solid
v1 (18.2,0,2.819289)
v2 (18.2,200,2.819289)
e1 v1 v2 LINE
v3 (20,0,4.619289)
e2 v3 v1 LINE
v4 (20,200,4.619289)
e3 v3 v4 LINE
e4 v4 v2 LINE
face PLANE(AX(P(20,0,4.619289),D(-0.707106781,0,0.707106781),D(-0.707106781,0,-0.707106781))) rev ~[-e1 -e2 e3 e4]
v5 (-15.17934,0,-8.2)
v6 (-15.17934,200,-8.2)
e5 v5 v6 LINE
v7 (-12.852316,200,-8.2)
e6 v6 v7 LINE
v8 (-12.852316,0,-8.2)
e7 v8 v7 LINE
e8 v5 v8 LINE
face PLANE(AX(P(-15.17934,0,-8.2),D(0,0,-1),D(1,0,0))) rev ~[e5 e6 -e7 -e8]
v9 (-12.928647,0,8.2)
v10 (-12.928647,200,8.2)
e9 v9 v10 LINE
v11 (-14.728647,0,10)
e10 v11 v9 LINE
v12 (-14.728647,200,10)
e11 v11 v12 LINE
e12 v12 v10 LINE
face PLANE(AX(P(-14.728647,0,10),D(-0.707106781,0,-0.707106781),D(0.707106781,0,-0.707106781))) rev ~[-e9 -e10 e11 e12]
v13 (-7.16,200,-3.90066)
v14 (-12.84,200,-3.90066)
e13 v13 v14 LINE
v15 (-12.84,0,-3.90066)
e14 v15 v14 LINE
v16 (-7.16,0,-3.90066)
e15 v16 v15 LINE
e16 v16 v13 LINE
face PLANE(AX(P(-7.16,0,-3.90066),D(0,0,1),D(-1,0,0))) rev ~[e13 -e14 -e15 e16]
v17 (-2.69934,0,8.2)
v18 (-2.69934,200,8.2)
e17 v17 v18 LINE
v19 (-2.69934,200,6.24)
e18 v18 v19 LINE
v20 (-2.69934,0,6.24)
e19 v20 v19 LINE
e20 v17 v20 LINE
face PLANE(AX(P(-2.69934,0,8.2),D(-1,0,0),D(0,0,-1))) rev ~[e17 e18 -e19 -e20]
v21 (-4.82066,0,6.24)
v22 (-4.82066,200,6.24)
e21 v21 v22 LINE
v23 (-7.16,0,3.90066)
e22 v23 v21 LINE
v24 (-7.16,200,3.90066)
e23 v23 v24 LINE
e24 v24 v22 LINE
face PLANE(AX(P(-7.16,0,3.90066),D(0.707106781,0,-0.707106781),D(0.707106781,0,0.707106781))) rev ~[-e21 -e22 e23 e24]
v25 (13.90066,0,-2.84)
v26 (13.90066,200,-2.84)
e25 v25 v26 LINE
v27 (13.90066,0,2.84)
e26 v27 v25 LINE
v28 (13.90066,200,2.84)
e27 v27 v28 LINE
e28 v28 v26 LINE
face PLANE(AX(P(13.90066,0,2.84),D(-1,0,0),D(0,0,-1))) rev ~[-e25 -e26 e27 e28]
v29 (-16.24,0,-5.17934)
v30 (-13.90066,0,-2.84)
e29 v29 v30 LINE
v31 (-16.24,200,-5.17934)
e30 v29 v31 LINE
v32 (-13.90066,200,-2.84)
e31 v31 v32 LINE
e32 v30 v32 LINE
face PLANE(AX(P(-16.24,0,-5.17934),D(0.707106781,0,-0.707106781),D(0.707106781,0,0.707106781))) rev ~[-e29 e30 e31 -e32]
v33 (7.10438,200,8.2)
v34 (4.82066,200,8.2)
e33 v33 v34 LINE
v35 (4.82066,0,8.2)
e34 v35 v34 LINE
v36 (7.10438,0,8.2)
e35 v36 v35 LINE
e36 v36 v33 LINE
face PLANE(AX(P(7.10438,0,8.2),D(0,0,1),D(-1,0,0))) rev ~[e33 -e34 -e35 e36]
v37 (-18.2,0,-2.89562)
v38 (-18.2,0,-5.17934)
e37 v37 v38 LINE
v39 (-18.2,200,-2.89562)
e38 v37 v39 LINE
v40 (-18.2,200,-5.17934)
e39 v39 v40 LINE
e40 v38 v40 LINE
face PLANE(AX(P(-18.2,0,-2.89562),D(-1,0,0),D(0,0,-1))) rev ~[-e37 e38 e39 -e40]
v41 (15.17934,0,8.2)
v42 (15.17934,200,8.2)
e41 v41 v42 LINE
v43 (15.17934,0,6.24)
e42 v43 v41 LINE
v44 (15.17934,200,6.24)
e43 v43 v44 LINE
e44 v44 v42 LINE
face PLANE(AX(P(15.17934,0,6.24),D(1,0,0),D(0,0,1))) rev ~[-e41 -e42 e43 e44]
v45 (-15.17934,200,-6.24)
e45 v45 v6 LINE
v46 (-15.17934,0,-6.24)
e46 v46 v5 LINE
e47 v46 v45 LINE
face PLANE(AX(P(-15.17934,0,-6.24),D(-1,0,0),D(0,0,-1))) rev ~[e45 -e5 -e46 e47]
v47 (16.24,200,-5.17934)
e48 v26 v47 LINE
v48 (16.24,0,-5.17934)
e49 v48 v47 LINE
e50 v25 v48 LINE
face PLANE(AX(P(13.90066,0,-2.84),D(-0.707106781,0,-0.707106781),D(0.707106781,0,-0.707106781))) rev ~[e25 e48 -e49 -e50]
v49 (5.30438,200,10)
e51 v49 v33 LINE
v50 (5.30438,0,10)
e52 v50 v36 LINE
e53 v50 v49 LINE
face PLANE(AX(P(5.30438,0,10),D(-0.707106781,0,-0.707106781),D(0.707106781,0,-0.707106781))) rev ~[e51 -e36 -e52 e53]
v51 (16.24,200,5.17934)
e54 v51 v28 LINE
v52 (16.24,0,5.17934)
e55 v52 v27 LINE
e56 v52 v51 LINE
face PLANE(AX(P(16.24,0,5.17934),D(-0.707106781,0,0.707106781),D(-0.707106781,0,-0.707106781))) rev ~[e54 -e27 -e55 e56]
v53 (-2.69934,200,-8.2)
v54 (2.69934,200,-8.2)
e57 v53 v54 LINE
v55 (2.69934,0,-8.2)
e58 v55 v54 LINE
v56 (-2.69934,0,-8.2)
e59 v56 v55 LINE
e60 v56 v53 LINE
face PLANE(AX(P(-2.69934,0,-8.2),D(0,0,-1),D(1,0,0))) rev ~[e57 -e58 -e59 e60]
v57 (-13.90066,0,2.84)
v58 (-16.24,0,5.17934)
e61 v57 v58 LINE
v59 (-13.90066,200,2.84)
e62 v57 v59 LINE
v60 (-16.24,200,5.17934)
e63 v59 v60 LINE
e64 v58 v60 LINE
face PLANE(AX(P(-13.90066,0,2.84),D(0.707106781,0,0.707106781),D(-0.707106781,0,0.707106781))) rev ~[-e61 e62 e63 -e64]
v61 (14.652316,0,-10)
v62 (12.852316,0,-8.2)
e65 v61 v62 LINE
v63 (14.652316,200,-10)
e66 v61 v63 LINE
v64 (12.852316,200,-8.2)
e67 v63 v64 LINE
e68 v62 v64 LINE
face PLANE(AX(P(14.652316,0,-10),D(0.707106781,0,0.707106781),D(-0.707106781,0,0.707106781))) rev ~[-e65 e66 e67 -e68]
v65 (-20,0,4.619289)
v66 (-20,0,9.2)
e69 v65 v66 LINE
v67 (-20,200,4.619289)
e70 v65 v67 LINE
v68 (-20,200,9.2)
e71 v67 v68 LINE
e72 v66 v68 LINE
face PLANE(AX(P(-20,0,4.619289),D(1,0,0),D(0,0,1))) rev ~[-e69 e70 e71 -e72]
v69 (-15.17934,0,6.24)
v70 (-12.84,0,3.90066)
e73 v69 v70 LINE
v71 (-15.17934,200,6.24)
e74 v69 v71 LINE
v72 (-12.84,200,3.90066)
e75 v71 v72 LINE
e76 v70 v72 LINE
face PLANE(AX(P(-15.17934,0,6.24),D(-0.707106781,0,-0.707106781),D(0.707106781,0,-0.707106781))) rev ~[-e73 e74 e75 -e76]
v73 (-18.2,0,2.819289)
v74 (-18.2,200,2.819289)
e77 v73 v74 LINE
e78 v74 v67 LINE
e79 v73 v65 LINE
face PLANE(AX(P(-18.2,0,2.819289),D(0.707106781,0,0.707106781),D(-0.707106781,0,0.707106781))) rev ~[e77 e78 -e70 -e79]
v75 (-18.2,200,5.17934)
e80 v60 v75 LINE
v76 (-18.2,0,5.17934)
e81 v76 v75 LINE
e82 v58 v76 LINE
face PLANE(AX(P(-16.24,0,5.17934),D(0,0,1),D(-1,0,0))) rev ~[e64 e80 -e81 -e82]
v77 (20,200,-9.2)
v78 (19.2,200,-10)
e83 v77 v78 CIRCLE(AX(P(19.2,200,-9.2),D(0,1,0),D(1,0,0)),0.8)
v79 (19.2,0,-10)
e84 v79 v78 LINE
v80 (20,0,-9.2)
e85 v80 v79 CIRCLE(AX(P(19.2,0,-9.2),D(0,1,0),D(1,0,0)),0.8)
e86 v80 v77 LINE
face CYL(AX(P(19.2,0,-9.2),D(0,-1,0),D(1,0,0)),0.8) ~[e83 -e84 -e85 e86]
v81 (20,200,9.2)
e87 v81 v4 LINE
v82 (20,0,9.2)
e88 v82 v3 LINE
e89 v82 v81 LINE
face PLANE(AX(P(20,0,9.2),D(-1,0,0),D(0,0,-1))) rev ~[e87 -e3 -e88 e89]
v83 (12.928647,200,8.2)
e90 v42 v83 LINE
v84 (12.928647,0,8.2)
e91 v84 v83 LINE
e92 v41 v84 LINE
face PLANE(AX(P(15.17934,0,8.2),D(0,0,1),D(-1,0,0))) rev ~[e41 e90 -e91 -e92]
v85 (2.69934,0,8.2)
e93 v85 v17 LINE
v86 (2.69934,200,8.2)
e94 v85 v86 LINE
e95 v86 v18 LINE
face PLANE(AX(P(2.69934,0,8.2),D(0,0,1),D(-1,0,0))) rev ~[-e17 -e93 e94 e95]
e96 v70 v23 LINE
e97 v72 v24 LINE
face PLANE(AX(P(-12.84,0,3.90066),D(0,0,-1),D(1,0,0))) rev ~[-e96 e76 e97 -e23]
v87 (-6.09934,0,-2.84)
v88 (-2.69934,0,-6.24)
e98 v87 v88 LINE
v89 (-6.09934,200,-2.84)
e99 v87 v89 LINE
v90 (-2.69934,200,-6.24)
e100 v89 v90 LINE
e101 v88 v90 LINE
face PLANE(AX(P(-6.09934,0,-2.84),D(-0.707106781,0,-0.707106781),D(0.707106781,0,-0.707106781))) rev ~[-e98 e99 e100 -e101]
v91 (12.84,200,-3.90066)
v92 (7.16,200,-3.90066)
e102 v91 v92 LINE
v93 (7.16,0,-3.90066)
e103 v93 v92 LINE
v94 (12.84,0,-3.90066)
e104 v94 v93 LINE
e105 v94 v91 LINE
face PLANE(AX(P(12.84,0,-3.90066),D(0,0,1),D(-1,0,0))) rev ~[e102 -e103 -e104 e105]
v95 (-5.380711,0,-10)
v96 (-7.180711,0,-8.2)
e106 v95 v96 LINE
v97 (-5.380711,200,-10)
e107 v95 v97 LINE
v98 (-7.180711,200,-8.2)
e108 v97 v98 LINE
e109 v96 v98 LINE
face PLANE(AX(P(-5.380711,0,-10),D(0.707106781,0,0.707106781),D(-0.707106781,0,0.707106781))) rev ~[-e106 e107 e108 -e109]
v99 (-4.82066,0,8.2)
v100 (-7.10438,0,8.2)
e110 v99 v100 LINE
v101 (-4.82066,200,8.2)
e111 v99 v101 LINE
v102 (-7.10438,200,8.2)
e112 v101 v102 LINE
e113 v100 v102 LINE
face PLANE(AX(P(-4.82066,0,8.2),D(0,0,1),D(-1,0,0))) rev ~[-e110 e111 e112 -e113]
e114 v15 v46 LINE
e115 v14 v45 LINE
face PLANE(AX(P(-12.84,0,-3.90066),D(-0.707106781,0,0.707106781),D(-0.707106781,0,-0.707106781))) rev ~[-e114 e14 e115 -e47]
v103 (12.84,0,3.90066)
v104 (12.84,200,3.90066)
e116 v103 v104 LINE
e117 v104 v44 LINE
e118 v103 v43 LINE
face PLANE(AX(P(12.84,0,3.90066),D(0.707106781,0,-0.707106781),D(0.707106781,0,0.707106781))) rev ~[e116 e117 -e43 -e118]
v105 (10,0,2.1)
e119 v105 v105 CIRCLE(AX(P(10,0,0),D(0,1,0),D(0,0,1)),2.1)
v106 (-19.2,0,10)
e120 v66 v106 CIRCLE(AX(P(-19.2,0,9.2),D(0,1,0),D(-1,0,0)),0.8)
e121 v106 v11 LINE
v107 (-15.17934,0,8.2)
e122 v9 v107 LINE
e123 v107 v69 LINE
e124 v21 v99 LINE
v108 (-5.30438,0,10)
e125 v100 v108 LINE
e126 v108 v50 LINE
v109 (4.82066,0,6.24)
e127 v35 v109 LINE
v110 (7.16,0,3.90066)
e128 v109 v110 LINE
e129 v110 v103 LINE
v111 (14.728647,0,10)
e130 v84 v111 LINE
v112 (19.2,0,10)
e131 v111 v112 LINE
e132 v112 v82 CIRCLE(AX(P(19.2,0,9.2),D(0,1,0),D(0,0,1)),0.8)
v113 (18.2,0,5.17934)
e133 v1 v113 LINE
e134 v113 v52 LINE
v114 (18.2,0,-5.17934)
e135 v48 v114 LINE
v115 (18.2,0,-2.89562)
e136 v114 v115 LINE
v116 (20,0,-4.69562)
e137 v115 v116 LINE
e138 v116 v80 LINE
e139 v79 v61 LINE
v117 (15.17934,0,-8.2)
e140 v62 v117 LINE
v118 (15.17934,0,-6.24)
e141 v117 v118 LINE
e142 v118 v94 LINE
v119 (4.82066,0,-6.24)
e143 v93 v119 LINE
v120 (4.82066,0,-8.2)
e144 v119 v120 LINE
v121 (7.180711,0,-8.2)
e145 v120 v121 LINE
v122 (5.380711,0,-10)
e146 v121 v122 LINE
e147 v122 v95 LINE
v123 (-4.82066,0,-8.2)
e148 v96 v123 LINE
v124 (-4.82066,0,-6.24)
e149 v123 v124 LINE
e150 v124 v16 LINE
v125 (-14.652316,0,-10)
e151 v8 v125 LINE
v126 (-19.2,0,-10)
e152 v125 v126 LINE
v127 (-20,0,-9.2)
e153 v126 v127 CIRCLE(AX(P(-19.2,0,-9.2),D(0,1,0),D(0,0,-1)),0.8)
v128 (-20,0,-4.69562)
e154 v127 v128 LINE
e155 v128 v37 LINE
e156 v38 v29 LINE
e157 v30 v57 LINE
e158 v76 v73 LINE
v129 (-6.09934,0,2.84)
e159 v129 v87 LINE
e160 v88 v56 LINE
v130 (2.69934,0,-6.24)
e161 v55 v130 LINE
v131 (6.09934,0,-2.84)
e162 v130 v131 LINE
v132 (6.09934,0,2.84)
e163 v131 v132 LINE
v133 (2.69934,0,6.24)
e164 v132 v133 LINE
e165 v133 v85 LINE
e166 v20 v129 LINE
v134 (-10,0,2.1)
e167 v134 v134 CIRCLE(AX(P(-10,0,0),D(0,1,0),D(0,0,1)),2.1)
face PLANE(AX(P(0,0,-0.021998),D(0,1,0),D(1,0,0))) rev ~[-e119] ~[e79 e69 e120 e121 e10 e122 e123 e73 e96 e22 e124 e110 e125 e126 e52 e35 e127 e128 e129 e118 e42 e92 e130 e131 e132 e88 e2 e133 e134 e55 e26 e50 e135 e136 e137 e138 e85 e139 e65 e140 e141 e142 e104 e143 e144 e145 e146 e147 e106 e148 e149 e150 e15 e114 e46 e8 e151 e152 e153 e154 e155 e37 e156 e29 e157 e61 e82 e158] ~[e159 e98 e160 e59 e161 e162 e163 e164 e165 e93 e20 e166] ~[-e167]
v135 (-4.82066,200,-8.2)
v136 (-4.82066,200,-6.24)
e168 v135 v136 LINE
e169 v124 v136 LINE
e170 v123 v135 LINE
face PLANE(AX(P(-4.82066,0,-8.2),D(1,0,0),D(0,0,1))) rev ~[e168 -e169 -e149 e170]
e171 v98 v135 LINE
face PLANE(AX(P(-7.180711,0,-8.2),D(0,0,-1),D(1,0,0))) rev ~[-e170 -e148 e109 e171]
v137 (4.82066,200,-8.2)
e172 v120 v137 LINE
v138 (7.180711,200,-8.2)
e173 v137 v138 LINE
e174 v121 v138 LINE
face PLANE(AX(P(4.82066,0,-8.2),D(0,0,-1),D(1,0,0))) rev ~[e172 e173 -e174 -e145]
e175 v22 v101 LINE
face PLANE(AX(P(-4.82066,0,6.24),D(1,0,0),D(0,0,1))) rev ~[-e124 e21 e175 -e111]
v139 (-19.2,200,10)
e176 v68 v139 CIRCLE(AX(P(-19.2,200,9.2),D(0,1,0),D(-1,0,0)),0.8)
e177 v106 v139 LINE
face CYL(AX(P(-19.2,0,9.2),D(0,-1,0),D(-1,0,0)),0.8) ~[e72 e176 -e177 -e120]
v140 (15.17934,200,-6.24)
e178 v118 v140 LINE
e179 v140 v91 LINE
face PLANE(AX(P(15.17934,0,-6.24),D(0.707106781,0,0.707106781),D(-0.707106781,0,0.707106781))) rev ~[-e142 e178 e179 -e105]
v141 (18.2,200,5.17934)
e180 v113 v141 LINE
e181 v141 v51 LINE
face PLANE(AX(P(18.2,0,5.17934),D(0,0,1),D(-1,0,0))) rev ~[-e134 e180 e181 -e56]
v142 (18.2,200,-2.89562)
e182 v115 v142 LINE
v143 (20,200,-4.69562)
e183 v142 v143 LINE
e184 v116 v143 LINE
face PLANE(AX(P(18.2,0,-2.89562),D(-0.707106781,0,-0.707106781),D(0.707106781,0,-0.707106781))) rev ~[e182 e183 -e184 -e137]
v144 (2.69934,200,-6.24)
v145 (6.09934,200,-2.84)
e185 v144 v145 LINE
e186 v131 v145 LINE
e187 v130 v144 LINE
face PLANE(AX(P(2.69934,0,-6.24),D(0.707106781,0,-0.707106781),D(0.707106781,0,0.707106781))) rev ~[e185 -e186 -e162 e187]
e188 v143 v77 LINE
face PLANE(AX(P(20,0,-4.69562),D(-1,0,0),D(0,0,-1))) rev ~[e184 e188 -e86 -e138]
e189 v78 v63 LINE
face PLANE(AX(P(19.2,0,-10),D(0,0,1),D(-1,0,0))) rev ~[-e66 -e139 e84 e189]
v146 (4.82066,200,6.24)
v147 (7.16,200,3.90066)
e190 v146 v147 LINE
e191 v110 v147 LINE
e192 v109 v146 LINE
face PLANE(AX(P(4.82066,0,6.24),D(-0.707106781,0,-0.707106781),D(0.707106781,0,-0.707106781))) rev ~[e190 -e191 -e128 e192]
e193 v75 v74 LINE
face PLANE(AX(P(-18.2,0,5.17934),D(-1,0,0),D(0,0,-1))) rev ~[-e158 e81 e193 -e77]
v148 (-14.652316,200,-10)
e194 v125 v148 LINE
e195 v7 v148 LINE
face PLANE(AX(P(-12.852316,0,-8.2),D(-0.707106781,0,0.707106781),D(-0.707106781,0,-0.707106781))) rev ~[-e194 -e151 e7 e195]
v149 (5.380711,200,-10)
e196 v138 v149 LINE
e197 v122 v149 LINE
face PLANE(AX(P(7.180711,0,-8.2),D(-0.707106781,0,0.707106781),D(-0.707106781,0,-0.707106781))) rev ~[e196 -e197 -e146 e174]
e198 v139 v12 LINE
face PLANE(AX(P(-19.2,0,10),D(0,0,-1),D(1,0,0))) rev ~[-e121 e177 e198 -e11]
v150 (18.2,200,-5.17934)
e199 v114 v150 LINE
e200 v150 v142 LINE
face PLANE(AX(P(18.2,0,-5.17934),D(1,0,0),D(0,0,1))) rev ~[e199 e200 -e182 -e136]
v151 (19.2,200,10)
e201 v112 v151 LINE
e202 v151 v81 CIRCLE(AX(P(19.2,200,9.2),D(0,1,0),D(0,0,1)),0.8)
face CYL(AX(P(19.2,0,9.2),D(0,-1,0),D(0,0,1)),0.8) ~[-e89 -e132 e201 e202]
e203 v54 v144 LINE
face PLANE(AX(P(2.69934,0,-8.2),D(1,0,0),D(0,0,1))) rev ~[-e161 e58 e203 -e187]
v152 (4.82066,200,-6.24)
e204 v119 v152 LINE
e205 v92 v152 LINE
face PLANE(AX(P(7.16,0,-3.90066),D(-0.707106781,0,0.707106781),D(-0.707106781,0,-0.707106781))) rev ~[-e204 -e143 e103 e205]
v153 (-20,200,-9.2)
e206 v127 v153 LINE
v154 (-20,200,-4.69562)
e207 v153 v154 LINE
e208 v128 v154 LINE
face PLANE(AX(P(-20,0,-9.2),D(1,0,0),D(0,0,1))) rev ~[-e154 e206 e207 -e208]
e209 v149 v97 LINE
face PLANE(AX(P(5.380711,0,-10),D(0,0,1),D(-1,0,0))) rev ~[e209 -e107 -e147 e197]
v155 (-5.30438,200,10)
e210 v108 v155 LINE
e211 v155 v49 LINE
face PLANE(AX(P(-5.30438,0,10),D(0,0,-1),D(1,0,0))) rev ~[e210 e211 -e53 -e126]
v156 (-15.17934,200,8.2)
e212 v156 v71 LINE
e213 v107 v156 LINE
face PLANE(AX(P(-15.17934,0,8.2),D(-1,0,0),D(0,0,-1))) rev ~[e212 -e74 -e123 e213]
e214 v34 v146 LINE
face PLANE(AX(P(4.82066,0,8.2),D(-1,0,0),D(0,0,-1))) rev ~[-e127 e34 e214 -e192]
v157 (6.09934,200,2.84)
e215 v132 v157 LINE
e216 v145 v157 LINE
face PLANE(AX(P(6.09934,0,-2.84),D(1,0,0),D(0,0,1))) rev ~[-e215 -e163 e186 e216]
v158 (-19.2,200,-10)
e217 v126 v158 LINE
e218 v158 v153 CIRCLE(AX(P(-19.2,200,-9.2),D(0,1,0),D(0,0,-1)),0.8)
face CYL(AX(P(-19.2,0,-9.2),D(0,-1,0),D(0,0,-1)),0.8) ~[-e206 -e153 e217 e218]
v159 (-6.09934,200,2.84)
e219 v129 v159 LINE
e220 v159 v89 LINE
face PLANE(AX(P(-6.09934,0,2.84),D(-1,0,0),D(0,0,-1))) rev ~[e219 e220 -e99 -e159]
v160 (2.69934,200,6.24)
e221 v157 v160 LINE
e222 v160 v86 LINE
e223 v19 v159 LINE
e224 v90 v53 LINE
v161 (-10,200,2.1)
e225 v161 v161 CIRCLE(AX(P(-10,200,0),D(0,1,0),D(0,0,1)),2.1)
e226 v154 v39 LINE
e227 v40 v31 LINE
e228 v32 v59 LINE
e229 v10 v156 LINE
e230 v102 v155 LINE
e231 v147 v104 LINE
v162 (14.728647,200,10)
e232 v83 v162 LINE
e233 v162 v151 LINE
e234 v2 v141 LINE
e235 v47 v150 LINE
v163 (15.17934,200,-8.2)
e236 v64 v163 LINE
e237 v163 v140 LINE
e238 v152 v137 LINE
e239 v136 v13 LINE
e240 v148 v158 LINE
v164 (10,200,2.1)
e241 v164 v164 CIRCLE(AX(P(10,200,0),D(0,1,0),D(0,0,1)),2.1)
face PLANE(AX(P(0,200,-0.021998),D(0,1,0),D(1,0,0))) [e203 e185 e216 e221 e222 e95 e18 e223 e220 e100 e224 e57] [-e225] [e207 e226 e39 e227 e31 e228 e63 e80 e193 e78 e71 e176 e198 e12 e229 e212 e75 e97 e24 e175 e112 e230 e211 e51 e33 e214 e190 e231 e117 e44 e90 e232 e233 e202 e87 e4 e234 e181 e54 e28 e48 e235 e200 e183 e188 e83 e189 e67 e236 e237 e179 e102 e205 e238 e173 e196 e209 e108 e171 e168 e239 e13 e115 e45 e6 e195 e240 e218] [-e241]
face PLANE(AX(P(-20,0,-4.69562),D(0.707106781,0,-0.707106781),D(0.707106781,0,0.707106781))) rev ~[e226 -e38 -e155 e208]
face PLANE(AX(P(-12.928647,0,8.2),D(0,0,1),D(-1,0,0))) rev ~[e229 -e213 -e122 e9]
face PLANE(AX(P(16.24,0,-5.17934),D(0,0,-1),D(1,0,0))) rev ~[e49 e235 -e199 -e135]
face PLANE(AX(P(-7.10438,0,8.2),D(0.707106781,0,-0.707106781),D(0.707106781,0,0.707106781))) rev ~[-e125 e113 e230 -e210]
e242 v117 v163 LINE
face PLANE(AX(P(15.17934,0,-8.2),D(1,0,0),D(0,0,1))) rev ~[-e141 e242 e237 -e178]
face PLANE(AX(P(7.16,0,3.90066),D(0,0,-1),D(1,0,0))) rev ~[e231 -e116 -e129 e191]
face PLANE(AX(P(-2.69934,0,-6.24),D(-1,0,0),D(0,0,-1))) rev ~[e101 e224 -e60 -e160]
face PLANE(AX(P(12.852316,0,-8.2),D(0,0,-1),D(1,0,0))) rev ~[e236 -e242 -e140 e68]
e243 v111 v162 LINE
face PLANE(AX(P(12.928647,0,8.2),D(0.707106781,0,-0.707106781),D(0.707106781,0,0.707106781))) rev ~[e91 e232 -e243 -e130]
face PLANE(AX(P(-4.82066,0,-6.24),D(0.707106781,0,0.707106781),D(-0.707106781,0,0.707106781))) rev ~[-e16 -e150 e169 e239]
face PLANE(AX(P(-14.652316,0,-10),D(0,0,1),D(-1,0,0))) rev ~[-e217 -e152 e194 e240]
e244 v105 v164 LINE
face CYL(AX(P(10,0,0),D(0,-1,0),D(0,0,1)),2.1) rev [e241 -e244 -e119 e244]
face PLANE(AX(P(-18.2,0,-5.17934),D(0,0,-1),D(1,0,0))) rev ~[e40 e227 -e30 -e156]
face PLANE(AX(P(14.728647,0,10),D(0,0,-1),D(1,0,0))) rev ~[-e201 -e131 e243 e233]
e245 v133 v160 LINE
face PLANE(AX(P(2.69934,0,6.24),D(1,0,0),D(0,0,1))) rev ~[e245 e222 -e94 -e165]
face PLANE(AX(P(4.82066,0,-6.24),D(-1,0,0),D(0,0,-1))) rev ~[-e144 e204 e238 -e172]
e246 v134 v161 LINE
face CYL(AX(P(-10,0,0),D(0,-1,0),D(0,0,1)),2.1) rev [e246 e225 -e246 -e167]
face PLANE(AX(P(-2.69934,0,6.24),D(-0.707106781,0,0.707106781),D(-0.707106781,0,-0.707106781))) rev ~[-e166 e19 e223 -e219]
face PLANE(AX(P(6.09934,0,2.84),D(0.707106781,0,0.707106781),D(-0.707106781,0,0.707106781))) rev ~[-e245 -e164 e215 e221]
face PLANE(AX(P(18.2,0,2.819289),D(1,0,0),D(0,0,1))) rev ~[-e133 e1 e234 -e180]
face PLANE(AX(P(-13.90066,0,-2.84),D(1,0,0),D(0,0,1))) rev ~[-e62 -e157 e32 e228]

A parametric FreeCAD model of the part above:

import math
import FreeCAD as App
import Part
import Sketcher
from FreeCAD import Vector
Q = App.Units.Quantity

doc = App.newDocument("Part")
params = doc.addObject("Spreadsheet::Sheet", "Params")
for row, (alias, value) in enumerate([
    ("sketch1_diameter", "4.2 mm"),
    ("sketch1_radius", "0.8 mm"),
    ("sketch1_width", "5.68 mm"),
    ("sketch1_width2", "1.96 mm"),
    ("pad1_length", "200 mm"),
], start=1):
    params.set(f"A{row}", alias)
    params.set(f"B{row}", "=" + value)
    params.setAlias(f"B{row}", alias)

body = doc.addObject("PartDesign::Body", "Body")

sketch1 = body.newObject("Sketcher::SketchObject", "Sketch")
sketch1.AttachmentSupport = (doc.getObject("XZ_Plane"), [""])
sketch1.MapMode = "FlatFace"
sketch1.addGeometry(Part.LineSegment(Vector(-19.2, 10, 0), Vector(-14.728647, 10, 0)), False)
sketch1.addGeometry(Part.LineSegment(Vector(-14.728647, 10, 0), Vector(-12.928647, 8.2, 0)), False)
sketch1.addGeometry(Part.LineSegment(Vector(-12.928647, 8.2, 0), Vector(-15.17934, 8.2, 0)), False)
sketch1.addGeometry(Part.LineSegment(Vector(-15.17934, 8.2, 0), Vector(-15.17934, 6.24, 0)), False)
sketch1.addGeometry(Part.LineSegment(Vector(-15.17934, 6.24, 0), Vector(-12.84, 3.90066, 0)), False)
sketch1.addGeometry(Part.LineSegment(Vector(-12.84, 3.90066, 0), Vector(-7.16, 3.90066, 0)), False)
sketch1.addGeometry(Part.LineSegment(Vector(-7.16, 3.90066, 0), Vector(-4.82066, 6.24, 0)), False)
sketch1.addGeometry(Part.LineSegment(Vector(-4.82066, 6.24, 0), Vector(-4.82066, 8.2, 0)), False)
sketch1.addGeometry(Part.LineSegment(Vector(-4.82066, 8.2, 0), Vector(-7.10438, 8.2, 0)), False)
sketch1.addGeometry(Part.LineSegment(Vector(-7.10438, 8.2, 0), Vector(-5.30438, 10, 0)), False)
sketch1.addGeometry(Part.LineSegment(Vector(-5.30438, 10, 0), Vector(5.30438, 10, 0)), False)
sketch1.addGeometry(Part.LineSegment(Vector(5.30438, 10, 0), Vector(7.10438, 8.2, 0)), False)
sketch1.addGeometry(Part.LineSegment(Vector(7.10438, 8.2, 0), Vector(4.82066, 8.2, 0)), False)
sketch1.addGeometry(Part.LineSegment(Vector(4.82066, 8.2, 0), Vector(4.82066, 6.24, 0)), False)
sketch1.addGeometry(Part.LineSegment(Vector(4.82066, 6.24, 0), Vector(7.16, 3.90066, 0)), False)
sketch1.addGeometry(Part.LineSegment(Vector(7.16, 3.90066, 0), Vector(12.84, 3.90066, 0)), False)
sketch1.addGeometry(Part.LineSegment(Vector(12.84, 3.90066, 0), Vector(15.17934, 6.24, 0)), False)
sketch1.addGeometry(Part.LineSegment(Vector(15.17934, 6.24, 0), Vector(15.17934, 8.2, 0)), False)
sketch1.addGeometry(Part.LineSegment(Vector(15.17934, 8.2, 0), Vector(12.928647, 8.2, 0)), False)
sketch1.addGeometry(Part.LineSegment(Vector(12.928647, 8.2, 0), Vector(14.728647, 10, 0)), False)
sketch1.addGeometry(Part.LineSegment(Vector(14.728647, 10, 0), Vector(19.2, 10, 0)), False)
sketch1.addGeometry(Part.ArcOfCircle(Part.Circle(Vector(19.2, 9.2, 0), Vector(0, 0, 1), 0.8), math.radians(0), math.radians(90)), False)
sketch1.addGeometry(Part.LineSegment(Vector(20, 9.2, 0), Vector(20, 4.619289, 0)), False)
sketch1.addGeometry(Part.LineSegment(Vector(20, 4.619289, 0), Vector(18.2, 2.819289, 0)), False)
sketch1.addGeometry(Part.LineSegment(Vector(18.2, 2.819289, 0), Vector(18.2, 5.17934, 0)), False)
sketch1.addGeometry(Part.LineSegment(Vector(18.2, 5.17934, 0), Vector(16.24, 5.17934, 0)), False)
sketch1.addGeometry(Part.LineSegment(Vector(16.24, 5.17934, 0), Vector(13.90066, 2.84, 0)), False)
sketch1.addGeometry(Part.LineSegment(Vector(13.90066, 2.84, 0), Vector(13.90066, -2.84, 0)), False)
sketch1.addGeometry(Part.LineSegment(Vector(13.90066, -2.84, 0), Vector(16.24, -5.17934, 0)), False)
sketch1.addGeometry(Part.LineSegment(Vector(16.24, -5.17934, 0), Vector(18.2, -5.17934, 0)), False)
sketch1.addGeometry(Part.LineSegment(Vector(18.2, -5.17934, 0), Vector(18.2, -2.89562, 0)), False)
sketch1.addGeometry(Part.LineSegment(Vector(18.2, -2.89562, 0), Vector(20, -4.69562, 0)), False)
sketch1.addGeometry(Part.LineSegment(Vector(20, -4.69562, 0), Vector(20, -9.2, 0)), False)
sketch1.addGeometry(Part.ArcOfCircle(Part.Circle(Vector(19.2, -9.2, 0), Vector(0, 0, 1), 0.8), math.radians(-90), math.radians(0)), False)
sketch1.addGeometry(Part.LineSegment(Vector(19.2, -10, 0), Vector(14.652316, -10, 0)), False)
sketch1.addGeometry(Part.LineSegment(Vector(14.652316, -10, 0), Vector(12.852316, -8.2, 0)), False)
sketch1.addGeometry(Part.LineSegment(Vector(12.852316, -8.2, 0), Vector(15.17934, -8.2, 0)), False)
sketch1.addGeometry(Part.LineSegment(Vector(15.17934, -8.2, 0), Vector(15.17934, -6.24, 0)), False)
sketch1.addGeometry(Part.LineSegment(Vector(15.17934, -6.24, 0), Vector(12.84, -3.90066, 0)), False)
sketch1.addGeometry(Part.LineSegment(Vector(12.84, -3.90066, 0), Vector(7.16, -3.90066, 0)), False)
sketch1.addGeometry(Part.LineSegment(Vector(7.16, -3.90066, 0), Vector(4.82066, -6.24, 0)), False)
sketch1.addGeometry(Part.LineSegment(Vector(4.82066, -6.24, 0), Vector(4.82066, -8.2, 0)), False)
sketch1.addGeometry(Part.LineSegment(Vector(4.82066, -8.2, 0), Vector(7.180711, -8.2, 0)), False)
sketch1.addGeometry(Part.LineSegment(Vector(7.180711, -8.2, 0), Vector(5.380711, -10, 0)), False)
sketch1.addGeometry(Part.LineSegment(Vector(5.380711, -10, 0), Vector(-5.380711, -10, 0)), False)
sketch1.addGeometry(Part.LineSegment(Vector(-5.380711, -10, 0), Vector(-7.180711, -8.2, 0)), False)
sketch1.addGeometry(Part.LineSegment(Vector(-7.180711, -8.2, 0), Vector(-4.82066, -8.2, 0)), False)
sketch1.addGeometry(Part.LineSegment(Vector(-4.82066, -8.2, 0), Vector(-4.82066, -6.24, 0)), False)
sketch1.addGeometry(Part.LineSegment(Vector(-4.82066, -6.24, 0), Vector(-7.16, -3.90066, 0)), False)
sketch1.addGeometry(Part.LineSegment(Vector(-7.16, -3.90066, 0), Vector(-12.84, -3.90066, 0)), False)
sketch1.addGeometry(Part.LineSegment(Vector(-12.84, -3.90066, 0), Vector(-15.17934, -6.24, 0)), False)
sketch1.addGeometry(Part.LineSegment(Vector(-15.17934, -6.24, 0), Vector(-15.17934, -8.2, 0)), False)
sketch1.addGeometry(Part.LineSegment(Vector(-15.17934, -8.2, 0), Vector(-12.852316, -8.2, 0)), False)
sketch1.addGeometry(Part.LineSegment(Vector(-12.852316, -8.2, 0), Vector(-14.652316, -10, 0)), False)
sketch1.addGeometry(Part.LineSegment(Vector(-14.652316, -10, 0), Vector(-19.2, -10, 0)), False)
sketch1.addGeometry(Part.ArcOfCircle(Part.Circle(Vector(-19.2, -9.2, 0), Vector(0, 0, 1), 0.8), math.radians(180), math.radians(270)), False)
sketch1.addGeometry(Part.LineSegment(Vector(-20, -9.2, 0), Vector(-20, -4.69562, 0)), False)
sketch1.addGeometry(Part.LineSegment(Vector(-20, -4.69562, 0), Vector(-18.2, -2.89562, 0)), False)
sketch1.addGeometry(Part.LineSegment(Vector(-18.2, -2.89562, 0), Vector(-18.2, -5.17934, 0)), False)
sketch1.addGeometry(Part.LineSegment(Vector(-18.2, -5.17934, 0), Vector(-16.24, -5.17934, 0)), False)
sketch1.addGeometry(Part.LineSegment(Vector(-16.24, -5.17934, 0), Vector(-13.90066, -2.84, 0)), False)
sketch1.addGeometry(Part.LineSegment(Vector(-13.90066, -2.84, 0), Vector(-13.90066, 2.84, 0)), False)
sketch1.addGeometry(Part.LineSegment(Vector(-13.90066, 2.84, 0), Vector(-16.24, 5.17934, 0)), False)
sketch1.addGeometry(Part.LineSegment(Vector(-16.24, 5.17934, 0), Vector(-18.2, 5.17934, 0)), False)
sketch1.addGeometry(Part.LineSegment(Vector(-18.2, 5.17934, 0), Vector(-18.2, 2.819289, 0)), False)
sketch1.addGeometry(Part.LineSegment(Vector(-18.2, 2.819289, 0), Vector(-20, 4.619289, 0)), False)
sketch1.addGeometry(Part.LineSegment(Vector(-20, 4.619289, 0), Vector(-20, 9.2, 0)), False)
sketch1.addGeometry(Part.ArcOfCircle(Part.Circle(Vector(-19.2, 9.2, 0), Vector(0, 0, 1), 0.8), math.radians(90), math.radians(180)), False)
sketch1.addGeometry(Part.Circle(Vector(-10, 0, 0), Vector(0, 0, 1), 2.1), False)
sketch1.addGeometry(Part.LineSegment(Vector(-2.69934, 8.2, 0), Vector(-2.69934, 6.24, 0)), False)
sketch1.addGeometry(Part.LineSegment(Vector(-2.69934, 6.24, 0), Vector(-6.09934, 2.84, 0)), False)
sketch1.addGeometry(Part.LineSegment(Vector(-6.09934, 2.84, 0), Vector(-6.09934, -2.84, 0)), False)
sketch1.addGeometry(Part.LineSegment(Vector(-6.09934, -2.84, 0), Vector(-2.69934, -6.24, 0)), False)
sketch1.addGeometry(Part.LineSegment(Vector(-2.69934, -6.24, 0), Vector(-2.69934, -8.2, 0)), False)
sketch1.addGeometry(Part.LineSegment(Vector(-2.69934, -8.2, 0), Vector(2.69934, -8.2, 0)), False)
sketch1.addGeometry(Part.LineSegment(Vector(2.69934, -8.2, 0), Vector(2.69934, -6.24, 0)), False)
sketch1.addGeometry(Part.LineSegment(Vector(2.69934, -6.24, 0), Vector(6.09934, -2.84, 0)), False)
sketch1.addGeometry(Part.LineSegment(Vector(6.09934, -2.84, 0), Vector(6.09934, 2.84, 0)), False)
sketch1.addGeometry(Part.LineSegment(Vector(6.09934, 2.84, 0), Vector(2.69934, 6.24, 0)), False)
sketch1.addGeometry(Part.LineSegment(Vector(2.69934, 6.24, 0), Vector(2.69934, 8.2, 0)), False)
sketch1.addGeometry(Part.LineSegment(Vector(2.69934, 8.2, 0), Vector(-2.69934, 8.2, 0)), False)
sketch1.addGeometry(Part.Circle(Vector(10, 0, 0), Vector(0, 0, 1), 2.1), False)
sketch1.addConstraint(Sketcher.Constraint("Coincident", 0, 2, 1, 1))
sketch1.addConstraint(Sketcher.Constraint("Coincident", 1, 2, 2, 1))
sketch1.addConstraint(Sketcher.Constraint("Coincident", 2, 2, 3, 1))
sketch1.addConstraint(Sketcher.Constraint("Coincident", 3, 2, 4, 1))
sketch1.addConstraint(Sketcher.Constraint("Coincident", 4, 2, 5, 1))
sketch1.addConstraint(Sketcher.Constraint("Coincident", 5, 2, 6, 1))
sketch1.addConstraint(Sketcher.Constraint("Coincident", 6, 2, 7, 1))
sketch1.addConstraint(Sketcher.Constraint("Coincident", 7, 2, 8, 1))
sketch1.addConstraint(Sketcher.Constraint("Coincident", 8, 2, 9, 1))
sketch1.addConstraint(Sketcher.Constraint("Coincident", 9, 2, 10, 1))
sketch1.addConstraint(Sketcher.Constraint("Coincident", 10, 2, 11, 1))
sketch1.addConstraint(Sketcher.Constraint("Coincident", 11, 2, 12, 1))
sketch1.addConstraint(Sketcher.Constraint("Coincident", 12, 2, 13, 1))
sketch1.addConstraint(Sketcher.Constraint("Coincident", 13, 2, 14, 1))
sketch1.addConstraint(Sketcher.Constraint("Coincident", 14, 2, 15, 1))
sketch1.addConstraint(Sketcher.Constraint("Coincident", 15, 2, 16, 1))
sketch1.addConstraint(Sketcher.Constraint("Coincident", 16, 2, 17, 1))
sketch1.addConstraint(Sketcher.Constraint("Coincident", 17, 2, 18, 1))
sketch1.addConstraint(Sketcher.Constraint("Coincident", 18, 2, 19, 1))
sketch1.addConstraint(Sketcher.Constraint("Coincident", 19, 2, 20, 1))
sketch1.addConstraint(Sketcher.Constraint("Tangent", 20, 2, 21, 2))
sketch1.addConstraint(Sketcher.Constraint("Tangent", 21, 1, 22, 1))
sketch1.addConstraint(Sketcher.Constraint("Coincident", 22, 2, 23, 1))
sketch1.addConstraint(Sketcher.Constraint("Coincident", 23, 2, 24, 1))
sketch1.addConstraint(Sketcher.Constraint("Coincident", 24, 2, 25, 1))
sketch1.addConstraint(Sketcher.Constraint("Coincident", 25, 2, 26, 1))
sketch1.addConstraint(Sketcher.Constraint("Coincident", 26, 2, 27, 1))
sketch1.addConstraint(Sketcher.Constraint("Coincident", 27, 2, 28, 1))
sketch1.addConstraint(Sketcher.Constraint("Coincident", 28, 2, 29, 1))
sketch1.addConstraint(Sketcher.Constraint("Coincident", 29, 2, 30, 1))
sketch1.addConstraint(Sketcher.Constraint("Coincident", 30, 2, 31, 1))
sketch1.addConstraint(Sketcher.Constraint("Coincident", 31, 2, 32, 1))
sketch1.addConstraint(Sketcher.Constraint("Tangent", 32, 2, 33, 2))
sketch1.addConstraint(Sketcher.Constraint("Tangent", 33, 1, 34, 1))
sketch1.addConstraint(Sketcher.Constraint("Coincident", 34, 2, 35, 1))
sketch1.addConstraint(Sketcher.Constraint("Coincident", 35, 2, 36, 1))
sketch1.addConstraint(Sketcher.Constraint("Coincident", 36, 2, 37, 1))
sketch1.addConstraint(Sketcher.Constraint("Coincident", 37, 2, 38, 1))
sketch1.addConstraint(Sketcher.Constraint("Coincident", 38, 2, 39, 1))
sketch1.addConstraint(Sketcher.Constraint("Coincident", 39, 2, 40, 1))
sketch1.addConstraint(Sketcher.Constraint("Coincident", 40, 2, 41, 1))
sketch1.addConstraint(Sketcher.Constraint("Coincident", 41, 2, 42, 1))
sketch1.addConstraint(Sketcher.Constraint("Coincident", 42, 2, 43, 1))
sketch1.addConstraint(Sketcher.Constraint("Coincident", 43, 2, 44, 1))
sketch1.addConstraint(Sketcher.Constraint("Coincident", 44, 2, 45, 1))
sketch1.addConstraint(Sketcher.Constraint("Coincident", 45, 2, 46, 1))
sketch1.addConstraint(Sketcher.Constraint("Coincident", 46, 2, 47, 1))
sketch1.addConstraint(Sketcher.Constraint("Coincident", 47, 2, 48, 1))
sketch1.addConstraint(Sketcher.Constraint("Coincident", 48, 2, 49, 1))
sketch1.addConstraint(Sketcher.Constraint("Coincident", 49, 2, 50, 1))
sketch1.addConstraint(Sketcher.Constraint("Coincident", 50, 2, 51, 1))
sketch1.addConstraint(Sketcher.Constraint("Coincident", 51, 2, 52, 1))
sketch1.addConstraint(Sketcher.Constraint("Coincident", 52, 2, 53, 1))
sketch1.addConstraint(Sketcher.Constraint("Coincident", 53, 2, 54, 1))
sketch1.addConstraint(Sketcher.Constraint("Tangent", 54, 2, 55, 2))
sketch1.addConstraint(Sketcher.Constraint("Tangent", 55, 1, 56, 1))
sketch1.addConstraint(Sketcher.Constraint("Coincident", 56, 2, 57, 1))
sketch1.addConstraint(Sketcher.Constraint("Coincident", 57, 2, 58, 1))
sketch1.addConstraint(Sketcher.Constraint("Coincident", 58, 2, 59, 1))
sketch1.addConstraint(Sketcher.Constraint("Coincident", 59, 2, 60, 1))
sketch1.addConstraint(Sketcher.Constraint("Coincident", 60, 2, 61, 1))
sketch1.addConstraint(Sketcher.Constraint("Coincident", 61, 2, 62, 1))
sketch1.addConstraint(Sketcher.Constraint("Coincident", 62, 2, 63, 1))
sketch1.addConstraint(Sketcher.Constraint("Coincident", 63, 2, 64, 1))
sketch1.addConstraint(Sketcher.Constraint("Coincident", 64, 2, 65, 1))
sketch1.addConstraint(Sketcher.Constraint("Coincident", 65, 2, 66, 1))
sketch1.addConstraint(Sketcher.Constraint("Tangent", 66, 2, 67, 2))
sketch1.addConstraint(Sketcher.Constraint("Tangent", 67, 1, 0, 1))
sketch1.addConstraint(Sketcher.Constraint("Coincident", 69, 2, 70, 1))
sketch1.addConstraint(Sketcher.Constraint("Coincident", 70, 2, 71, 1))
sketch1.addConstraint(Sketcher.Constraint("Coincident", 71, 2, 72, 1))
sketch1.addConstraint(Sketcher.Constraint("Coincident", 72, 2, 73, 1))
sketch1.addConstraint(Sketcher.Constraint("Coincident", 73, 2, 74, 1))
sketch1.addConstraint(Sketcher.Constraint("Coincident", 74, 2, 75, 1))
sketch1.addConstraint(Sketcher.Constraint("Coincident", 75, 2, 76, 1))
sketch1.addConstraint(Sketcher.Constraint("Coincident", 76, 2, 77, 1))
sketch1.addConstraint(Sketcher.Constraint("Coincident", 77, 2, 78, 1))
sketch1.addConstraint(Sketcher.Constraint("Coincident", 78, 2, 79, 1))
sketch1.addConstraint(Sketcher.Constraint("Coincident", 79, 2, 80, 1))
sketch1.addConstraint(Sketcher.Constraint("Coincident", 80, 2, 69, 1))
sketch1.addConstraint(Sketcher.Constraint("Horizontal", 0))
sketch1.addConstraint(Sketcher.Constraint("Horizontal", 2))
sketch1.addConstraint(Sketcher.Constraint("Vertical", 3))
sketch1.addConstraint(Sketcher.Constraint("Horizontal", 5))
sketch1.addConstraint(Sketcher.Constraint("Vertical", 7))
sketch1.addConstraint(Sketcher.Constraint("Horizontal", 8))
sketch1.addConstraint(Sketcher.Constraint("Horizontal", 10))
sketch1.addConstraint(Sketcher.Constraint("Horizontal", 12))
sketch1.addConstraint(Sketcher.Constraint("Vertical", 13))
sketch1.addConstraint(Sketcher.Constraint("Horizontal", 15))
sketch1.addConstraint(Sketcher.Constraint("Vertical", 17))
sketch1.addConstraint(Sketcher.Constraint("Horizontal", 18))
sketch1.addConstraint(Sketcher.Constraint("Horizontal", 20))
sketch1.addConstraint(Sketcher.Constraint("Vertical", 22))
sketch1.addConstraint(Sketcher.Constraint("Vertical", 24))
sketch1.addConstraint(Sketcher.Constraint("Horizontal", 25))
sketch1.addConstraint(Sketcher.Constraint("Vertical", 27))
sketch1.addConstraint(Sketcher.Constraint("Horizontal", 29))
sketch1.addConstraint(Sketcher.Constraint("Vertical", 30))
sketch1.addConstraint(Sketcher.Constraint("Vertical", 32))
sketch1.addConstraint(Sketcher.Constraint("Horizontal", 34))
sketch1.addConstraint(Sketcher.Constraint("Horizontal", 36))
sketch1.addConstraint(Sketcher.Constraint("Vertical", 37))
sketch1.addConstraint(Sketcher.Constraint("Horizontal", 39))
sketch1.addConstraint(Sketcher.Constraint("Vertical", 41))
sketch1.addConstraint(Sketcher.Constraint("Horizontal", 42))
sketch1.addConstraint(Sketcher.Constraint("Horizontal", 44))
sketch1.addConstraint(Sketcher.Constraint("Horizontal", 46))
sketch1.addConstraint(Sketcher.Constraint("Vertical", 47))
sketch1.addConstraint(Sketcher.Constraint("Horizontal", 49))
sketch1.addConstraint(Sketcher.Constraint("Vertical", 51))
sketch1.addConstraint(Sketcher.Constraint("Horizontal", 52))
sketch1.addConstraint(Sketcher.Constraint("Horizontal", 54))
sketch1.addConstraint(Sketcher.Constraint("Vertical", 56))
sketch1.addConstraint(Sketcher.Constraint("Vertical", 58))
sketch1.addConstraint(Sketcher.Constraint("Horizontal", 59))
sketch1.addConstraint(Sketcher.Constraint("Vertical", 61))
sketch1.addConstraint(Sketcher.Constraint("Horizontal", 63))
sketch1.addConstraint(Sketcher.Constraint("Vertical", 64))
sketch1.addConstraint(Sketcher.Constraint("Vertical", 66))
sketch1.addConstraint(Sketcher.Constraint("Vertical", 69))
sketch1.addConstraint(Sketcher.Constraint("Vertical", 71))
sketch1.addConstraint(Sketcher.Constraint("Vertical", 73))
sketch1.addConstraint(Sketcher.Constraint("Horizontal", 74))
sketch1.addConstraint(Sketcher.Constraint("Vertical", 75))
sketch1.addConstraint(Sketcher.Constraint("Vertical", 77))
sketch1.addConstraint(Sketcher.Constraint("Vertical", 79))
sketch1.addConstraint(Sketcher.Constraint("Horizontal", 80))
sketch1.addConstraint(Sketcher.Constraint("Equal", 21, 33))
sketch1.addConstraint(Sketcher.Constraint("Equal", 33, 55))
sketch1.addConstraint(Sketcher.Constraint("Equal", 55, 67))
sketch1.addConstraint(Sketcher.Constraint("Equal", 68, 81))
sketch1.addConstraint(Sketcher.Constraint("Symmetric", 21, 3, 55, 3, -1, 1))
sketch1.addConstraint(Sketcher.Constraint("Symmetric", 33, 3, 67, 3, -1, 1))
sketch1.addConstraint(Sketcher.Constraint("Symmetric", 68, 3, 81, 3, -1, 1))
sketch1.addConstraint(Sketcher.Constraint("Symmetric", 2, 2, 36, 2, -1, 1))
sketch1.addConstraint(Sketcher.Constraint("Symmetric", 4, 2, 38, 2, -1, 1))
sketch1.addConstraint(Sketcher.Constraint("Symmetric", 6, 2, 40, 2, -1, 1))
sketch1.addConstraint(Sketcher.Constraint("Symmetric", 12, 2, 46, 2, -1, 1))
sketch1.addConstraint(Sketcher.Constraint("Symmetric", 14, 2, 48, 2, -1, 1))
sketch1.addConstraint(Sketcher.Constraint("Symmetric", 16, 2, 50, 2, -1, 1))
sketch1.addConstraint(Sketcher.Constraint("Symmetric", 24, 2, 58, 2, -1, 1))
sketch1.addConstraint(Sketcher.Constraint("Symmetric", 26, 2, 60, 2, -1, 1))
sketch1.addConstraint(Sketcher.Constraint("Symmetric", 28, 2, 62, 2, -1, 1))
sketch1.addConstraint(Sketcher.Constraint("Symmetric", 69, 2, 75, 2, -1, 1))
sketch1.addConstraint(Sketcher.Constraint("Symmetric", 70, 2, 76, 2, -1, 1))
sketch1.addConstraint(Sketcher.Constraint("Symmetric", 72, 2, 78, 2, -1, 1))
sketch1.addConstraint(Sketcher.Constraint("Symmetric", 33, 3, 55, 3, -2))
sketch1.addConstraint(Sketcher.Constraint("Symmetric", 8, 2, 11, 2, -2))
sketch1.addConstraint(Sketcher.Constraint("Symmetric", 6, 2, 13, 2, -2))
sketch1.addConstraint(Sketcher.Constraint("Symmetric", 5, 2, 14, 2, -2))
sketch1.addConstraint(Sketcher.Constraint("Symmetric", 3, 2, 16, 2, -2))
sketch1.addConstraint(Sketcher.Constraint("Symmetric", 1, 2, 18, 2, -2))
sketch1.addConstraint(Sketcher.Constraint("Symmetric", 42, 2, 45, 2, -2))
sketch1.addConstraint(Sketcher.Constraint("Symmetric", 35, 2, 52, 2, -2))
sketch1.addConstraint(Sketcher.Constraint("Symmetric", 30, 2, 57, 2, -2))
sketch1.addConstraint(Sketcher.Constraint("Symmetric", 28, 2, 59, 2, -2))
sketch1.addConstraint(Sketcher.Constraint("Symmetric", 23, 2, 64, 2, -2))
sketch1.addConstraint(Sketcher.Constraint("Symmetric", 72, 2, 75, 2, -2))
sketch1.addConstraint(Sketcher.Constraint("PointOnObject", 68, 3, -1))
sketch1.addConstraint(Sketcher.Constraint("Parallel", 1, 4))
sketch1.addConstraint(Sketcher.Constraint("Perpendicular", 4, 6))
sketch1.addConstraint(Sketcher.Constraint("Parallel", 6, 9))
sketch1.addConstraint(Sketcher.Constraint("Perpendicular", 9, 11))
sketch1.addConstraint(Sketcher.Constraint("Parallel", 11, 14))
sketch1.addConstraint(Sketcher.Constraint("Perpendicular", 14, 16))
sketch1.addConstraint(Sketcher.Constraint("Parallel", 16, 19))
sketch1.addConstraint(Sketcher.Constraint("Parallel", 19, 23))
sketch1.addConstraint(Sketcher.Constraint("Parallel", 23, 26))
sketch1.addConstraint(Sketcher.Constraint("Perpendicular", 26, 28))
sketch1.addConstraint(Sketcher.Constraint("Parallel", 28, 31))
sketch1.addConstraint(Sketcher.Constraint("Parallel", 31, 35))
sketch1.addConstraint(Sketcher.Constraint("Parallel", 35, 38))
sketch1.addConstraint(Sketcher.Constraint("Perpendicular", 38, 40))
sketch1.addConstraint(Sketcher.Constraint("Parallel", 40, 43))
sketch1.addConstraint(Sketcher.Constraint("Perpendicular", 43, 45))
sketch1.addConstraint(Sketcher.Constraint("Parallel", 45, 48))
sketch1.addConstraint(Sketcher.Constraint("Perpendicular", 48, 50))
sketch1.addConstraint(Sketcher.Constraint("Parallel", 50, 53))
sketch1.addConstraint(Sketcher.Constraint("Parallel", 53, 57))
sketch1.addConstraint(Sketcher.Constraint("Parallel", 57, 60))
sketch1.addConstraint(Sketcher.Constraint("Perpendicular", 60, 62))
sketch1.addConstraint(Sketcher.Constraint("Parallel", 62, 65))
sketch1.addConstraint(Sketcher.Constraint("Perpendicular", 65, 70))
sketch1.addConstraint(Sketcher.Constraint("Perpendicular", 70, 72))
sketch1.addConstraint(Sketcher.Constraint("Perpendicular", 76, 78))
sketch1.addConstraint(Sketcher.Constraint("Horizontal", 3, 2, 6, 2))
sketch1.addConstraint(Sketcher.Constraint("Horizontal", 2, 2, 7, 2))
sketch1.addConstraint(Sketcher.Constraint("Horizontal", 0, 2, 9, 2))
sketch1.addConstraint(Sketcher.Constraint("Horizontal", 34, 2, 43, 2))
sketch1.addConstraint(Sketcher.Constraint("Horizontal", 16, 2, 69, 2))
sketch1.addConstraint(Sketcher.Constraint("Horizontal", 61, 2, 70, 2))
sketch1.addConstraint(Sketcher.Constraint("Horizontal", 52, 2, 73, 2))
sketch1.addConstraint(Sketcher.Constraint("Horizontal", 18, 2, 79, 2))
sketch1.addConstraint(Sketcher.Constraint("Equal", 63, 3))
sketch1.addConstraint(Sketcher.Constraint("Equal", 46, 24))
sketch1.addConstraint(Sketcher.Constraint("Equal", 49, 27))
sketch1.addConstraint(Sketcher.Constraint("Equal", 12, 30))
sketch1.addConstraint(Sketcher.Constraint("Equal", 19, 23))
sketch1.addConstraint(Sketcher.Constraint("Equal", 16, 26))
sketch1.addConstraint(Sketcher.Constraint("Diameter", 68, Q("4.2 mm")))
sketch1.addConstraint(Sketcher.Constraint("Radius", 21, Q("0.8 mm")))
sketch1.addConstraint(Sketcher.Constraint("DistanceX", 68, 3, -1, 1, Q("10 mm")))
sketch1.addConstraint(Sketcher.Constraint("DistanceY", -1, 1, 0, 2, Q("10 mm")))
sketch1.addConstraint(Sketcher.Constraint("DistanceX", -1, 1, 21, 1, Q("20 mm")))
sketch1.addConstraint(Sketcher.Constraint("DistanceX", 5, 1, 5, 2, Q("5.68 mm")))
sketch1.addConstraint(Sketcher.Constraint("DistanceX", 25, 2, 25, 1, Q("1.96 mm")))
sketch1.addConstraint(Sketcher.Constraint("DistanceY", -1, 1, 1, 2, Q("8.2 mm")))
sketch1.addConstraint(Sketcher.Constraint("DistanceX", 4, 2, -1, 1, Q("12.84 mm")))
sketch1.addConstraint(Sketcher.Constraint("DistanceX", 8, 2, 8, 1, Q("2.28372 mm")))
sketch1.addConstraint(Sketcher.Constraint("DistanceX", 10, 1, 10, 2, Q("10.60876 mm")))
sketch1.addConstraint(Sketcher.Constraint("DistanceX", 42, 1, 42, 2, Q("2.360051 mm")))
sketch1.addConstraint(Sketcher.Constraint("DistanceX", 74, 1, 74, 2, Q("5.39868 mm")))
sketch1.addConstraint(Sketcher.Constraint("DistanceX", 0, 1, 0, 2, Q("4.471353 mm")))
sketch1.addConstraint(Sketcher.Constraint("DistanceX", 34, 2, 34, 1, Q("4.547684 mm")))
sketch1.setExpression("Constraints[200]", "Params.sketch1_diameter")
sketch1.setExpression("Constraints[201]", "Params.sketch1_radius")
sketch1.setExpression("Constraints[205]", "Params.sketch1_width")
sketch1.setExpression("Constraints[206]", "Params.sketch1_width2")
pad1 = body.newObject("PartDesign::Pad", "Pad")
pad1.Profile = sketch1
pad1.setExpression("Length", "Params.pad1_length")
pad1.Reversed = True

doc.recompute()
